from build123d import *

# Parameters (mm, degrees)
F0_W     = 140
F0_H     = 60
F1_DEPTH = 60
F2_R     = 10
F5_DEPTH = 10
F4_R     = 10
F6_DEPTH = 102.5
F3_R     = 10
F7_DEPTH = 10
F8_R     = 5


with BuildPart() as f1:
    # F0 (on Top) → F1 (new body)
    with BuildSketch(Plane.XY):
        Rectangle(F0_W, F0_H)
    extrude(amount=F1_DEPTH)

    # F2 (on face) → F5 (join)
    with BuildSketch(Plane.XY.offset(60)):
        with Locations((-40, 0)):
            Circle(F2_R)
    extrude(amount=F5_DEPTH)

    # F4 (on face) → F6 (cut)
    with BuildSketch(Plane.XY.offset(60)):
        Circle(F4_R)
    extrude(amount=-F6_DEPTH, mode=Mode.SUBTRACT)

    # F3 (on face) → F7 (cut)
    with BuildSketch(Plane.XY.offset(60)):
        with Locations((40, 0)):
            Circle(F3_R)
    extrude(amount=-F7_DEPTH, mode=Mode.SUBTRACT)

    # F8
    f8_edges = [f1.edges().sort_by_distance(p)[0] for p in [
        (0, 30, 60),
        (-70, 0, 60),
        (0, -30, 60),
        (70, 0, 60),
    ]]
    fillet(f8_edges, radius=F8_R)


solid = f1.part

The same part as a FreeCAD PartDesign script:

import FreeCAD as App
import Part
import Sketcher
from FreeCAD import Vector


def edges_at(feature, points):
    """Names of the edges that pass closest to the given points."""
    edges = feature.Shape.Edges
    near = lambda p: min(range(len(edges)), key=lambda i: edges[i].distToShape(Part.Vertex(*p))[0])
    return sorted({f"Edge{near(p) + 1}" for p in points})


def add_polygon(sketch, points):
    """Adds a closed chain of lines whose ends are joined by coincident constraints."""
    first, n = sketch.GeometryCount, len(points)
    for a, b in zip(points, points[1:] + points[:1]):
        sketch.addGeometry(Part.LineSegment(App.Vector(*a, 0), App.Vector(*b, 0)), False)
    for i in range(n):
        sketch.addConstraint(Sketcher.Constraint("Coincident", first + i, 2, first + (i + 1) % n, 1))

doc = App.newDocument("Part")
body = doc.addObject("PartDesign::Body", "Body")

# Sketch on XY plane
sketch1 = body.newObject("Sketcher::SketchObject", "Sketch")
sketch1.AttachmentSupport = (doc.getObject("XY_Plane"), [""])
sketch1.MapMode = "FlatFace"
add_polygon(sketch1, [(-70, 30), (-70, -30), (70, -30), (70, 30)])  # lines 0-3
sketch1.addConstraint(Sketcher.Constraint("Vertical", 0))
sketch1.addConstraint(Sketcher.Constraint("Horizontal", 1))
sketch1.addConstraint(Sketcher.Constraint("Vertical", 2))
sketch1.addConstraint(Sketcher.Constraint("Horizontal", 3))
sketch1.addConstraint(Sketcher.Constraint("Symmetric", 0, 2, 2, 2, -1, 1))
sketch1.addConstraint(Sketcher.Constraint("DistanceX", 1, 1, 1, 2, 140.0))
sketch1.addConstraint(Sketcher.Constraint("DistanceY", 0, 2, 0, 1, 60.0))
pad1 = body.newObject("PartDesign::Pad", "Pad")
pad1.Profile = sketch1
pad1.Length = 60

# Sketch on XY plane
sketch2 = body.newObject("Sketcher::SketchObject", "Sketch001")
sketch2.AttachmentSupport = (doc.getObject("XY_Plane"), [""])
sketch2.MapMode = "FlatFace"
sketch2.AttachmentOffset = App.Placement(Vector(0, 0, 60), App.Rotation())
sketch2.addGeometry(Part.Circle(Vector(-40, 0, 0), Vector(0, 0, 1), 10), False)
sketch2.addConstraint(Sketcher.Constraint("PointOnObject", 0, 3, -1))
sketch2.addConstraint(Sketcher.Constraint("Diameter", 0, 20.0))
sketch2.addConstraint(Sketcher.Constraint("DistanceX", 0, 3, -1, 1, 40.0))
pad2 = body.newObject("PartDesign::Pad", "Pad001")
pad2.Profile = sketch2
pad2.Length = 10

# Sketch on XY plane
sketch3 = body.newObject("Sketcher::SketchObject", "Sketch002")
sketch3.AttachmentSupport = (doc.getObject("XY_Plane"), [""])
sketch3.MapMode = "FlatFace"
sketch3.AttachmentOffset = App.Placement(Vector(0, 0, 60), App.Rotation())
sketch3.addGeometry(Part.Circle(Vector(0, 0, 0), Vector(0, 0, 1), 10), False)
sketch3.addConstraint(Sketcher.Constraint("Coincident", 0, 3, -1, 1))
sketch3.addConstraint(Sketcher.Constraint("Diameter", 0, 20.0))
pocket1 = body.newObject("PartDesign::Pocket", "Pocket")
pocket1.Profile = sketch3
pocket1.Length = 102.5

# Sketch on XY plane
sketch4 = body.newObject("Sketcher::SketchObject", "Sketch003")
sketch4.AttachmentSupport = (doc.getObject("XY_Plane"), [""])
sketch4.MapMode = "FlatFace"
sketch4.AttachmentOffset = App.Placement(Vector(0, 0, 60), App.Rotation())
sketch4.addGeometry(Part.Circle(Vector(40, 0, 0), Vector(0, 0, 1), 10), False)
sketch4.addConstraint(Sketcher.Constraint("PointOnObject", 0, 3, -1))
sketch4.addConstraint(Sketcher.Constraint("Diameter", 0, 20.0))
sketch4.addConstraint(Sketcher.Constraint("DistanceX", -1, 1, 0, 3, 40.0))
pocket2 = body.newObject("PartDesign::Pocket", "Pocket001")
pocket2.Profile = sketch4
pocket2.Length = 10
doc.recompute()

fillet = body.newObject("PartDesign::Fillet", "Fillet")
fillet.Base = (pocket2, edges_at(pocket2, [
    (0, 30, 60),
    (-70, 0, 60),
    (0, -30, 60),
    (70, 0, 60),
]))
fillet.Radius = 5

doc.recompute()
